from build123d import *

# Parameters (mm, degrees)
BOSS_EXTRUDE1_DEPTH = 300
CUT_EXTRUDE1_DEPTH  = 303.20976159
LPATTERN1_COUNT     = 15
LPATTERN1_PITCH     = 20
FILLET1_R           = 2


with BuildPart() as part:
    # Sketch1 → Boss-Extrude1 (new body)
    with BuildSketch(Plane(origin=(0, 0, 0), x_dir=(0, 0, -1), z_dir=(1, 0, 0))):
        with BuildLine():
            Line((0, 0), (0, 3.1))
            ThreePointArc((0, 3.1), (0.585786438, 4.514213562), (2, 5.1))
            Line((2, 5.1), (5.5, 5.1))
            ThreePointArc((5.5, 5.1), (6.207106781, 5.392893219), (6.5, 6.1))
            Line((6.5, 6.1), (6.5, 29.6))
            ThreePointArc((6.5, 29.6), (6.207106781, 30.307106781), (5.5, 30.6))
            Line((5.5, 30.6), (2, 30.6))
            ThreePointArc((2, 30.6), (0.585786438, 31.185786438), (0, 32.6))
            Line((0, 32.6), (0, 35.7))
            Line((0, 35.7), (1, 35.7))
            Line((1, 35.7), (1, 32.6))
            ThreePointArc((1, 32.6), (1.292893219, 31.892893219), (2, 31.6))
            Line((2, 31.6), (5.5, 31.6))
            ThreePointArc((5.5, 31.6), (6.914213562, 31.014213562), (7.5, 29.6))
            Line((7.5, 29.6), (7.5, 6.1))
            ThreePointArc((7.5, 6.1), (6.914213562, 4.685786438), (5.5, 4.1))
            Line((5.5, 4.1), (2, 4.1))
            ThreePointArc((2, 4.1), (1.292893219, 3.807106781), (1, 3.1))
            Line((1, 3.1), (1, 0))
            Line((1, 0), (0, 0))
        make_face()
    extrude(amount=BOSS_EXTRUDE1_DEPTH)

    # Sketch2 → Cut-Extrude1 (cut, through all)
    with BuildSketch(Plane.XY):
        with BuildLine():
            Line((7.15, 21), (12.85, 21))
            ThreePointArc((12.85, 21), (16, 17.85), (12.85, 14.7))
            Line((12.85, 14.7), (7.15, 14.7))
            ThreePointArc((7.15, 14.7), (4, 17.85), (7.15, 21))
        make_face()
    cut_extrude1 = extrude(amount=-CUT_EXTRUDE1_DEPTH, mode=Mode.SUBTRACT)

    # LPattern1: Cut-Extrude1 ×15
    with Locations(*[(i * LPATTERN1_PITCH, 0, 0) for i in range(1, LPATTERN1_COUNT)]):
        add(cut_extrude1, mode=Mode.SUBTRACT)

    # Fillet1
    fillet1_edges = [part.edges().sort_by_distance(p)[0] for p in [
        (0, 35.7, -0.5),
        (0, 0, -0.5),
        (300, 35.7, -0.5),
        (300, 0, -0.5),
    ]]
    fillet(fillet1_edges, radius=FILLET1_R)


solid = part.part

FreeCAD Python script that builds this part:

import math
import FreeCAD as App
import Part
import Sketcher


def edges_at(feature, points):
    """Names of the edges that pass closest to the given points."""
    edges = feature.Shape.Edges
    near = lambda p: min(range(len(edges)), key=lambda i: edges[i].distToShape(Part.Vertex(*p))[0])
    return sorted({f"Edge{near(p) + 1}" for p in points})

doc = App.newDocument("Part")
params = doc.addObject("Spreadsheet::Sheet", "Params")
for row, (alias, value) in enumerate([
    ("sketch1_radius", "1 mm"),
    ("sketch1_radius2", "2 mm"),
    ("sketch1_width", "3.1 mm"),
    ("sketch1_width2", "23.5 mm"),
    ("sketch1_height", "3.5 mm"),
    ("pad1_length", "300 mm"),
    ("sketch2_radius", "3.15 mm"),
    ("sketch2_width", "5.7 mm"),
    ("linearpattern_pitch", "20 mm"),
    ("fillet_radius", "2 mm"),
], start=1):
    params.set(f"A{row}", alias)
    params.set(f"B{row}", "=" + value)
    params.setAlias(f"B{row}", alias)

body = doc.addObject("PartDesign::Body", "Body")

# Sketch on YZ plane
sketch1 = body.newObject("Sketcher::SketchObject", "Sketch")
sketch1.AttachmentSupport = (doc.getObject("YZ_Plane"), [""])
sketch1.MapMode = "FlatFace"
sketch1.addGeometry(Part.LineSegment(App.Vector(3.1, 0, 0), App.Vector(0, 0, 0)), False)
sketch1.addGeometry(Part.LineSegment(App.Vector(0, 0, 0), App.Vector(0, -1, 0)), False)
sketch1.addGeometry(Part.LineSegment(App.Vector(0, -1, 0), App.Vector(3.1, -1, 0)), False)
sketch1.addGeometry(Part.ArcOfCircle(Part.Circle(App.Vector(3.1, -2, 0), App.Vector(0, 0, 1), 1), math.radians(0), math.radians(90)), False)
sketch1.addGeometry(Part.LineSegment(App.Vector(4.1, -2, 0), App.Vector(4.1, -5.5, 0)), False)
sketch1.addGeometry(Part.ArcOfCircle(Part.Circle(App.Vector(6.1, -5.5, 0), App.Vector(0, 0, 1), 2), math.radians(-180), math.radians(-90)), False)
sketch1.addGeometry(Part.LineSegment(App.Vector(6.1, -7.5, 0), App.Vector(29.6, -7.5, 0)), False)
sketch1.addGeometry(Part.ArcOfCircle(Part.Circle(App.Vector(29.6, -5.5, 0), App.Vector(0, 0, 1), 2), math.radians(-90), math.radians(0)), False)
sketch1.addGeometry(Part.LineSegment(App.Vector(31.6, -5.5, 0), App.Vector(31.6, -2, 0)), False)
sketch1.addGeometry(Part.ArcOfCircle(Part.Circle(App.Vector(32.6, -2, 0), App.Vector(0, 0, 1), 1), math.radians(90), math.radians(180)), False)
sketch1.addGeometry(Part.LineSegment(App.Vector(32.6, -1, 0), App.Vector(35.7, -1, 0)), False)
sketch1.addGeometry(Part.LineSegment(App.Vector(35.7, -1, 0), App.Vector(35.7, 0, 0)), False)
sketch1.addGeometry(Part.LineSegment(App.Vector(35.7, 0, 0), App.Vector(32.6, 0, 0)), False)
sketch1.addGeometry(Part.ArcOfCircle(Part.Circle(App.Vector(32.6, -2, 0), App.Vector(0, 0, 1), 2), math.radians(90), math.radians(180)), False)
sketch1.addGeometry(Part.LineSegment(App.Vector(30.6, -2, 0), App.Vector(30.6, -5.5, 0)), False)
sketch1.addGeometry(Part.ArcOfCircle(Part.Circle(App.Vector(29.6, -5.5, 0), App.Vector(0, 0, 1), 1), math.radians(-90), math.radians(0)), False)
sketch1.addGeometry(Part.LineSegment(App.Vector(29.6, -6.5, 0), App.Vector(6.1, -6.5, 0)), False)
sketch1.addGeometry(Part.ArcOfCircle(Part.Circle(App.Vector(6.1, -5.5, 0), App.Vector(0, 0, 1), 1), math.radians(-180), math.radians(-90)), False)
sketch1.addGeometry(Part.LineSegment(App.Vector(5.1, -5.5, 0), App.Vector(5.1, -2, 0)), False)
sketch1.addGeometry(Part.ArcOfCircle(Part.Circle(App.Vector(3.1, -2, 0), App.Vector(0, 0, 1), 2), math.radians(0), math.radians(90)), False)
sketch1.addConstraint(Sketcher.Constraint("Coincident", 0, 2, 1, 1))
sketch1.addConstraint(Sketcher.Constraint("Coincident", 1, 2, 2, 1))
sketch1.addConstraint(Sketcher.Constraint("Tangent", 2, 2, 3, 2))
sketch1.addConstraint(Sketcher.Constraint("Tangent", 3, 1, 4, 1))
sketch1.addConstraint(Sketcher.Constraint("Tangent", 4, 2, 5, 1))
sketch1.addConstraint(Sketcher.Constraint("Tangent", 5, 2, 6, 1))
sketch1.addConstraint(Sketcher.Constraint("Tangent", 6, 2, 7, 1))
sketch1.addConstraint(Sketcher.Constraint("Tangent", 7, 2, 8, 1))
sketch1.addConstraint(Sketcher.Constraint("Tangent", 8, 2, 9, 2))
sketch1.addConstraint(Sketcher.Constraint("Tangent", 9, 1, 10, 1))
sketch1.addConstraint(Sketcher.Constraint("Coincident", 10, 2, 11, 1))
sketch1.addConstraint(Sketcher.Constraint("Coincident", 11, 2, 12, 1))
sketch1.addConstraint(Sketcher.Constraint("Tangent", 12, 2, 13, 1))
sketch1.addConstraint(Sketcher.Constraint("Tangent", 13, 2, 14, 1))
sketch1.addConstraint(Sketcher.Constraint("Tangent", 14, 2, 15, 2))
sketch1.addConstraint(Sketcher.Constraint("Tangent", 15, 1, 16, 1))
sketch1.addConstraint(Sketcher.Constraint("Tangent", 16, 2, 17, 2))
sketch1.addConstraint(Sketcher.Constraint("Tangent", 17, 1, 18, 1))
sketch1.addConstraint(Sketcher.Constraint("Tangent", 18, 2, 19, 1))
sketch1.addConstraint(Sketcher.Constraint("Tangent", 19, 2, 0, 1))
sketch1.addConstraint(Sketcher.Constraint("Horizontal", 0))
sketch1.addConstraint(Sketcher.Constraint("Vertical", 1))
sketch1.addConstraint(Sketcher.Constraint("Horizontal", 2))
sketch1.addConstraint(Sketcher.Constraint("Vertical", 4))
sketch1.addConstraint(Sketcher.Constraint("Horizontal", 6))
sketch1.addConstraint(Sketcher.Constraint("Vertical", 8))
sketch1.addConstraint(Sketcher.Constraint("Horizontal", 10))
sketch1.addConstraint(Sketcher.Constraint("Vertical", 11))
sketch1.addConstraint(Sketcher.Constraint("Horizontal", 12))
sketch1.addConstraint(Sketcher.Constraint("Vertical", 14))
sketch1.addConstraint(Sketcher.Constraint("Horizontal", 16))
sketch1.addConstraint(Sketcher.Constraint("Vertical", 18))
sketch1.addConstraint(Sketcher.Constraint("Coincident", 0, 2, -1, 1))
sketch1.addConstraint(Sketcher.Constraint("Coincident", 13, 3, 9, 3))
sketch1.addConstraint(Sketcher.Constraint("Coincident", 15, 3, 7, 3))
sketch1.addConstraint(Sketcher.Constraint("Coincident", 17, 3, 5, 3))
sketch1.addConstraint(Sketcher.Constraint("Coincident", 19, 3, 3, 3))
sketch1.addConstraint(Sketcher.Constraint("Equal", 5, 7))
sketch1.addConstraint(Sketcher.Constraint("Equal", 3, 9))
sketch1.addConstraint(Sketcher.Constraint("Equal", 7, 13))
sketch1.addConstraint(Sketcher.Constraint("PointOnObject", 11, 2, -1))
sketch1.addConstraint(Sketcher.Constraint("Equal", 2, 10))
sketch1.addConstraint(Sketcher.Constraint("Radius", 3, 1.0))
sketch1.addConstraint(Sketcher.Constraint("Radius", 5, 2.0))
sketch1.addConstraint(Sketcher.Constraint("DistanceX", 0, 2, 0, 1, 3.1))
sketch1.addConstraint(Sketcher.Constraint("DistanceX", 6, 1, 6, 2, 23.5))
sketch1.addConstraint(Sketcher.Constraint("DistanceY", 4, 2, 4, 1, 3.5))
sketch1.setExpression("Constraints[42]", "Params.sketch1_radius")
sketch1.setExpression("Constraints[43]", "Params.sketch1_radius2")
sketch1.setExpression("Constraints[44]", "Params.sketch1_width")
sketch1.setExpression("Constraints[45]", "Params.sketch1_width2")
sketch1.setExpression("Constraints[46]", "Params.sketch1_height")
pad1 = body.newObject("PartDesign::Pad", "Pad")
pad1.Profile = sketch1
pad1.setExpression("Length", "Params.pad1_length")

# Sketch on XY plane
sketch2 = body.newObject("Sketcher::SketchObject", "Sketch001")
sketch2.AttachmentSupport = (doc.getObject("XY_Plane"), [""])
sketch2.MapMode = "FlatFace"
sketch2.addGeometry(Part.LineSegment(App.Vector(12.8, 21, 0), App.Vector(7.2, 21, 0)), False)
sketch2.addGeometry(Part.ArcOfCircle(Part.Circle(App.Vector(7.2, 17.9, 0), App.Vector(0, 0, 1), 3.1), math.radians(90), math.radians(270)), False)
sketch2.addGeometry(Part.LineSegment(App.Vector(7.2, 14.7, 0), App.Vector(12.8, 14.7, 0)), False)
sketch2.addGeometry(Part.ArcOfCircle(Part.Circle(App.Vector(12.8, 17.9, 0), App.Vector(0, 0, 1), 3.1), math.radians(-90), math.radians(90)), False)
sketch2.addConstraint(Sketcher.Constraint("Tangent", 0, 2, 1, 1))
sketch2.addConstraint(Sketcher.Constraint("Tangent", 1, 2, 2, 1))
sketch2.addConstraint(Sketcher.Constraint("Tangent", 2, 2, 3, 1))
sketch2.addConstraint(Sketcher.Constraint("Tangent", 3, 2, 0, 1))
sketch2.addConstraint(Sketcher.Constraint("Horizontal", 0))
sketch2.addConstraint(Sketcher.Constraint("Horizontal", 2))
sketch2.addConstraint(Sketcher.Constraint("Radius", 1, 3.15))
sketch2.addConstraint(Sketcher.Constraint("DistanceX", 0, 2, 0, 1, 5.7))
sketch2.addConstraint(Sketcher.Constraint("DistanceY", -1, 1, 0, 2, 21.0))
sketch2.addConstraint(Sketcher.Constraint("DistanceX", -1, 1, 1, 3, 7.15))
sketch2.setExpression("Constraints[6]", "Params.sketch2_radius")
sketch2.setExpression("Constraints[7]", "Params.sketch2_width")
pocket1 = body.newObject("PartDesign::Pocket", "Pocket")
pocket1.Profile = sketch2
pocket1.Type = "ThroughAll"
doc.recompute()

linearpattern = body.newObject("PartDesign::LinearPattern", "LinearPattern")
linearpattern.Originals = [pocket1]
linearpattern.Direction = (doc.getObject("X_Axis"), [""])
linearpattern.Mode = "offset"
linearpattern.setExpression("Offset", "Params.linearpattern_pitch")
linearpattern.Occurrences = 15
body.Tip = linearpattern
doc.recompute()

fillet = body.newObject("PartDesign::Fillet", "Fillet")
fillet.Base = (linearpattern, edges_at(linearpattern, [
    (0, 35.7, -0.5),
    (0, 0, -0.5),
    (300, 35.7, -0.5),
    (300, 0, -0.5),
]))
fillet.setExpression("Radius", "Params.fillet_radius")

doc.recompute()
